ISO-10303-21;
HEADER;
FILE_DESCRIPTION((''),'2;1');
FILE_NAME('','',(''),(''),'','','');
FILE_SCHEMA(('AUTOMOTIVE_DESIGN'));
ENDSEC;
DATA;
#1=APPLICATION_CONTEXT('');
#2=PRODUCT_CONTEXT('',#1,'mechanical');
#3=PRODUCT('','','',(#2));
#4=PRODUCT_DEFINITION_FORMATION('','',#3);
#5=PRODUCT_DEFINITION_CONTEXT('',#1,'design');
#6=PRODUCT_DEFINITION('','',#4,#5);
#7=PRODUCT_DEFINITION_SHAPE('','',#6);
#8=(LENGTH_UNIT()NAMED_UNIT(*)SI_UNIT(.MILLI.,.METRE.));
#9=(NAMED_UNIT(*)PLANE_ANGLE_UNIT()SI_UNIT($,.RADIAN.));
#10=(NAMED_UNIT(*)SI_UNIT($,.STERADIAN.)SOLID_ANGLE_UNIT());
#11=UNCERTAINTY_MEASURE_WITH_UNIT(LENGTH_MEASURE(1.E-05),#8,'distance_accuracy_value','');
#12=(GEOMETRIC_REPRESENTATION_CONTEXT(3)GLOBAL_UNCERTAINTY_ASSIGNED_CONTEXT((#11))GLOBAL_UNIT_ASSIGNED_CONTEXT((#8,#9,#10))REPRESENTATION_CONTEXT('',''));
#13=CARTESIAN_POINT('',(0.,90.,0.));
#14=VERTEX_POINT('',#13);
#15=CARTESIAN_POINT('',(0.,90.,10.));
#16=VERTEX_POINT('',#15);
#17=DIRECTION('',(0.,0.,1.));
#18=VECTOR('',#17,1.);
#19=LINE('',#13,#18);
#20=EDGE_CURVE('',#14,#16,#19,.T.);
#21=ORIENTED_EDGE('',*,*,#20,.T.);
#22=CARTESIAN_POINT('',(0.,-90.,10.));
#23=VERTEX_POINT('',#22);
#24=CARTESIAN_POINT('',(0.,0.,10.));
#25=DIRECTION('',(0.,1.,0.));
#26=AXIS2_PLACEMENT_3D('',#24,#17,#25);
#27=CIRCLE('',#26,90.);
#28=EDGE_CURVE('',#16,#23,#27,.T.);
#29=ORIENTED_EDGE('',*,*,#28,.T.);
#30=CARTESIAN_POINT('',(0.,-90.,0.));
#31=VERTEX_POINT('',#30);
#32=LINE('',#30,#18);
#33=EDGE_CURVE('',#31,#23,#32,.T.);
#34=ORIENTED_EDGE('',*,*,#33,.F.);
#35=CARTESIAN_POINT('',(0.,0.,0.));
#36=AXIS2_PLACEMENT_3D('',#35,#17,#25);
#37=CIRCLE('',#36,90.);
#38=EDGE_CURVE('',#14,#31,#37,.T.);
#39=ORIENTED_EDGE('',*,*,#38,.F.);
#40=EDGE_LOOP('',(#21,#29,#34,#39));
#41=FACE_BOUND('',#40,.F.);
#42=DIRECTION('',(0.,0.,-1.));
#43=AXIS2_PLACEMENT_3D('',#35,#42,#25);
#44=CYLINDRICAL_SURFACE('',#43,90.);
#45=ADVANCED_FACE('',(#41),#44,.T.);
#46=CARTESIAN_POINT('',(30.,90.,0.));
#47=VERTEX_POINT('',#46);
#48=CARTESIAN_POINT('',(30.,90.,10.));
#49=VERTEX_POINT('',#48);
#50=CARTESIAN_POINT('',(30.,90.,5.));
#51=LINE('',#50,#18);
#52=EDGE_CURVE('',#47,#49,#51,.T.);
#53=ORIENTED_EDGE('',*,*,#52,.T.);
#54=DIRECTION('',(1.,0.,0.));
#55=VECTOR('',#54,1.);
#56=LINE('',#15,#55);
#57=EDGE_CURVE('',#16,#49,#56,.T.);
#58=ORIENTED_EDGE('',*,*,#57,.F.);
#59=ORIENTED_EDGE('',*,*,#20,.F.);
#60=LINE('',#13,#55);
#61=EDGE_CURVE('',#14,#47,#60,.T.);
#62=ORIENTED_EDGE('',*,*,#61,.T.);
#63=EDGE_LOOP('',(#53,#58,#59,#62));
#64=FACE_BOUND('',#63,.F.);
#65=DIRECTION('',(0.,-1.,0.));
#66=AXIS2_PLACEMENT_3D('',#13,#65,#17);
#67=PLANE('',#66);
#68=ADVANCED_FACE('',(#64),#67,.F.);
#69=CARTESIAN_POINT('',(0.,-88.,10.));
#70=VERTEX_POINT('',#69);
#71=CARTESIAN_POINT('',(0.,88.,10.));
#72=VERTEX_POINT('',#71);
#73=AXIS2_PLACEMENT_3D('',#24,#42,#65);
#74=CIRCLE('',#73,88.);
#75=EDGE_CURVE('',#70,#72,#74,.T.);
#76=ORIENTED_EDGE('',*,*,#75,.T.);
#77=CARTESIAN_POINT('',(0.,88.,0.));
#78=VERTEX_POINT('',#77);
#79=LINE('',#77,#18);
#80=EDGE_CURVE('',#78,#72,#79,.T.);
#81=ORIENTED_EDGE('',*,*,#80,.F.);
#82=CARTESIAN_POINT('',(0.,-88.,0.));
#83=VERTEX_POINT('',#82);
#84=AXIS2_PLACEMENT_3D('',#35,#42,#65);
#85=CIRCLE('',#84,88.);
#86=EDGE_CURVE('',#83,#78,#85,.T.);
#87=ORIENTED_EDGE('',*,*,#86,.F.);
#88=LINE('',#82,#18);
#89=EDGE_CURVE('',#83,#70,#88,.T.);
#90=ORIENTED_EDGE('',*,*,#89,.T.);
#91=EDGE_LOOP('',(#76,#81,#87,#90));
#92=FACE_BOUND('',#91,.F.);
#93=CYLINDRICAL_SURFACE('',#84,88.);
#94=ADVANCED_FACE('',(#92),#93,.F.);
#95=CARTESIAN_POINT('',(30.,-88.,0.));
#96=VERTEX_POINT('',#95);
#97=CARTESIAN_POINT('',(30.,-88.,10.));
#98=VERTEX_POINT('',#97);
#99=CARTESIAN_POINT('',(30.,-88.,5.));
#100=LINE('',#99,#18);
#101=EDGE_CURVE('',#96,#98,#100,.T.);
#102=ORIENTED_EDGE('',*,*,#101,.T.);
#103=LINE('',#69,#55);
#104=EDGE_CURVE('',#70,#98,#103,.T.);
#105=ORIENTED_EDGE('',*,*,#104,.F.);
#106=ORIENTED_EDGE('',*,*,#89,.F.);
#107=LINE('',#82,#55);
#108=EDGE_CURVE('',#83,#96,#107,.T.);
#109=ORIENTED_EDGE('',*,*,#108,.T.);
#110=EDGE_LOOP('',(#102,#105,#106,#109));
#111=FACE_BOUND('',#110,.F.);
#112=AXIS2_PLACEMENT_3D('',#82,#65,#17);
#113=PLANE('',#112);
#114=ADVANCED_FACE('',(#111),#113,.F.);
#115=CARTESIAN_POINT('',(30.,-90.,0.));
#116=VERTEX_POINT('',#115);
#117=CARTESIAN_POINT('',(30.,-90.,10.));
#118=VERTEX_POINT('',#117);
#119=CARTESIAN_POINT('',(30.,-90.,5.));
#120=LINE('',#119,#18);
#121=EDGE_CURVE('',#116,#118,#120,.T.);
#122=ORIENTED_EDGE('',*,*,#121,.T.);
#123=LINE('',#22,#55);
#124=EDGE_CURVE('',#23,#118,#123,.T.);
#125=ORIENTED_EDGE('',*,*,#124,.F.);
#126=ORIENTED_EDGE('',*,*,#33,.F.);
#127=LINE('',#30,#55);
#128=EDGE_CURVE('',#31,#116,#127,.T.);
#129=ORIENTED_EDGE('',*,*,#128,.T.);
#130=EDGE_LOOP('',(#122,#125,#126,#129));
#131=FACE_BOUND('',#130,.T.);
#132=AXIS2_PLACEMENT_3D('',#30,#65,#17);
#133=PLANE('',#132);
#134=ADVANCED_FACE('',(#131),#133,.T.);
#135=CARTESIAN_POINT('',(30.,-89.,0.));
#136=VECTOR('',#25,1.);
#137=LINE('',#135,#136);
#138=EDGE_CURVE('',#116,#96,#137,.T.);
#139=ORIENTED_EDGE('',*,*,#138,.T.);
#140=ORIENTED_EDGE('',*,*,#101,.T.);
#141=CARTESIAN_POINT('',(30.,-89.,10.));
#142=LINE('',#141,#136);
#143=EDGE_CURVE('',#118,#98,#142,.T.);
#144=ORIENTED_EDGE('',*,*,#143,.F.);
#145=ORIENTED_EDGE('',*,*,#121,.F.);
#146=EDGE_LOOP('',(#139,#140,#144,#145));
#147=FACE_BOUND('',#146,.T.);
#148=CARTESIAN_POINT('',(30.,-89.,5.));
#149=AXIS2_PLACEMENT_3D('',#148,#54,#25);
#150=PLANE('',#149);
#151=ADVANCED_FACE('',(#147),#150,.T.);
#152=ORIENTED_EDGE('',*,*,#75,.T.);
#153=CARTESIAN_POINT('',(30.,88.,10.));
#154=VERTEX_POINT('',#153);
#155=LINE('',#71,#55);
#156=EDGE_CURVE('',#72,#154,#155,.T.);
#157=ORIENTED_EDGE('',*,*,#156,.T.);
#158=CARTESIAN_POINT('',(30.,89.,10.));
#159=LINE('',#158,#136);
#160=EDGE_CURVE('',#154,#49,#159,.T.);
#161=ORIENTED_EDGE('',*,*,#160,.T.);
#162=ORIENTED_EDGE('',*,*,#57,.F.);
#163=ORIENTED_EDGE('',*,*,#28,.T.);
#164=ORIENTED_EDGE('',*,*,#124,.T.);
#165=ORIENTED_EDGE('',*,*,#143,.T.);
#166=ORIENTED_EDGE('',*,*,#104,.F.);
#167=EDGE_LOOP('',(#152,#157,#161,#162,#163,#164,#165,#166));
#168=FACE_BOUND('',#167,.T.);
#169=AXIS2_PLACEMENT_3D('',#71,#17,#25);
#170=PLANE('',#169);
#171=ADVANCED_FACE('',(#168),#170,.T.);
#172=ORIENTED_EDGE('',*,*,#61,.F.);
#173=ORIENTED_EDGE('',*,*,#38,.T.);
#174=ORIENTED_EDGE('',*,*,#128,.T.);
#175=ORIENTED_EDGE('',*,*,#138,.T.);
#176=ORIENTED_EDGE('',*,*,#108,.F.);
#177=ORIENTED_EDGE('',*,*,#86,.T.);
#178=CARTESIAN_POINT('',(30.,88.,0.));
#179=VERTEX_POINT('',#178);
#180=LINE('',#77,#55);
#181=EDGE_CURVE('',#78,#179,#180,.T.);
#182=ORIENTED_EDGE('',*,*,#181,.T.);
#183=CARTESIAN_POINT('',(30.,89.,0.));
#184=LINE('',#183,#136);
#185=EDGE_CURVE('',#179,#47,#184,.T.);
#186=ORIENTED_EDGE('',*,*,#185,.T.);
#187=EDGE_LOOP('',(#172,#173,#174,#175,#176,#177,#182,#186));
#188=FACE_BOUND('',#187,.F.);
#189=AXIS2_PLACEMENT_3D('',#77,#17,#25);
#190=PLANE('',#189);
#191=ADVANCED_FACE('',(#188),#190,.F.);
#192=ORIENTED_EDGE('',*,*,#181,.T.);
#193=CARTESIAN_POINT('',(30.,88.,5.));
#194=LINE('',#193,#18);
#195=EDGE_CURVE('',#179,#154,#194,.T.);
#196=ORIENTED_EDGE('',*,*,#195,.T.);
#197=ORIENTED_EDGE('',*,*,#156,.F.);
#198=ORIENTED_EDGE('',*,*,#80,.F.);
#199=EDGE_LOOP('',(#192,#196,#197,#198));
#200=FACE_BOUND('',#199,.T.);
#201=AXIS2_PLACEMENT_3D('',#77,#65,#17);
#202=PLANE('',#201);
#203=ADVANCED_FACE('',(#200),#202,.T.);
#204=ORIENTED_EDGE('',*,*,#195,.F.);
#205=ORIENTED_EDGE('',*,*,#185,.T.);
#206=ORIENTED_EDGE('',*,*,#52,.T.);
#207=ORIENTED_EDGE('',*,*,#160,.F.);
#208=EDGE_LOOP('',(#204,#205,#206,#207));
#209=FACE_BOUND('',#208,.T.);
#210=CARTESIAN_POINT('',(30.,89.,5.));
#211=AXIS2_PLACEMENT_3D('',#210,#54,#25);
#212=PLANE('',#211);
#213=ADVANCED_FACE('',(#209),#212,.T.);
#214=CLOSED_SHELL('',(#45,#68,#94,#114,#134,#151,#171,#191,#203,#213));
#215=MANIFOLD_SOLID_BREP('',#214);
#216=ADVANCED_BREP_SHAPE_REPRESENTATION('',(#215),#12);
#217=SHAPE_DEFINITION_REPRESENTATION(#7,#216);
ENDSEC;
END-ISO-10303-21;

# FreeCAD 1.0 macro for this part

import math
import FreeCAD as App
import Part
import Sketcher
Q = App.Units.Quantity

doc = App.newDocument("Part")
body = doc.addObject("PartDesign::Body", "Body")

# Sketch on XY plane
sketch1 = body.newObject("Sketcher::SketchObject", "Sketch")
sketch1.AttachmentSupport = (doc.getObject("XY_Plane"), [""])
sketch1.MapMode = "FlatFace"
sketch1.addGeometry([
    Part.LineSegment(App.Vector(0, 88, 0), App.Vector(0, 90, 0)),
    Part.ArcOfCircle(Part.Circle(App.Vector(0, 0, 0), App.Vector(0, 0, 1), 90), math.radians(90), math.radians(270)),
    Part.LineSegment(App.Vector(0, -90, 0), App.Vector(0, -88, 0)),
    Part.ArcOfCircle(Part.Circle(App.Vector(0, 0, 0), App.Vector(0, 0, 1), 88), math.radians(90), math.radians(270)),
], False)
sketch1.addConstraint([
    Sketcher.Constraint("Coincident", 0, 2, 1, 1),
    Sketcher.Constraint("Coincident", 1, 2, 2, 1),
    Sketcher.Constraint("Coincident", 2, 2, 3, 2),
    Sketcher.Constraint("Coincident", 3, 1, 0, 1),
    Sketcher.Constraint("Vertical", 0),
    Sketcher.Constraint("Vertical", 2),
    Sketcher.Constraint("Coincident", 1, 3, -1, 1),
    Sketcher.Constraint("Coincident", 3, 3, -1, 1),
    Sketcher.Constraint("PointOnObject", 0, 2, -2),
    Sketcher.Constraint("PointOnObject", 1, 2, -2),
    Sketcher.Constraint("Radius", 1, Q("90 mm")),
    Sketcher.Constraint("Radius", 3, Q("88 mm")),
])
pad1 = body.newObject("PartDesign::Pad", "Pad")
pad1.Profile = sketch1
pad1.Length = 10

# Sketch on YZ plane
sketch2 = body.newObject("Sketcher::SketchObject", "Sketch001")
sketch2.AttachmentSupport = (doc.getObject("YZ_Plane"), [""])
sketch2.MapMode = "FlatFace"
sketch2.addGeometry([
    Part.LineSegment(App.Vector(-90, 10, 0), App.Vector(-90, 0, 0)),
    Part.LineSegment(App.Vector(-90, 0, 0), App.Vector(-88, 0, 0)),
    Part.LineSegment(App.Vector(-88, 0, 0), App.Vector(-88, 10, 0)),
    Part.LineSegment(App.Vector(-88, 10, 0), App.Vector(-90, 10, 0)),
], False)
sketch2.addConstraint([
    Sketcher.Constraint("Coincident", 0, 2, 1, 1),
    Sketcher.Constraint("Coincident", 1, 2, 2, 1),
    Sketcher.Constraint("Coincident", 2, 2, 3, 1),
    Sketcher.Constraint("Coincident", 3, 2, 0, 1),
    Sketcher.Constraint("Vertical", 0),
    Sketcher.Constraint("Horizontal", 1),
    Sketcher.Constraint("Vertical", 2),
    Sketcher.Constraint("Horizontal", 3),
    Sketcher.Constraint("PointOnObject", 0, 2, -1),
    Sketcher.Constraint("DistanceX", 1, 1, 1, 2, Q("2 mm")),
    Sketcher.Constraint("DistanceY", 0, 2, 0, 1, Q("10 mm")),
    Sketcher.Constraint("DistanceX", 0, 2, -1, 1, Q("90 mm")),
])
pad2 = body.newObject("PartDesign::Pad", "Pad001")
pad2.Profile = sketch2
pad2.Length = 30

# Sketch on YZ plane
sketch3 = body.newObject("Sketcher::SketchObject", "Sketch002")
sketch3.AttachmentSupport = (doc.getObject("YZ_Plane"), [""])
sketch3.MapMode = "FlatFace"
sketch3.addGeometry([
    Part.LineSegment(App.Vector(88, 10, 0), App.Vector(88, 0, 0)),
    Part.LineSegment(App.Vector(88, 0, 0), App.Vector(90, 0, 0)),
    Part.LineSegment(App.Vector(90, 0, 0), App.Vector(90, 10, 0)),
    Part.LineSegment(App.Vector(90, 10, 0), App.Vector(88, 10, 0)),
], False)
sketch3.addConstraint([
    Sketcher.Constraint("Coincident", 0, 2, 1, 1),
    Sketcher.Constraint("Coincident", 1, 2, 2, 1),
    Sketcher.Constraint("Coincident", 2, 2, 3, 1),
    Sketcher.Constraint("Coincident", 3, 2, 0, 1),
    Sketcher.Constraint("Vertical", 0),
    Sketcher.Constraint("Horizontal", 1),
    Sketcher.Constraint("Vertical", 2),
    Sketcher.Constraint("Horizontal", 3),
    Sketcher.Constraint("PointOnObject", 0, 2, -1),
    Sketcher.Constraint("DistanceX", 1, 1, 1, 2, Q("2 mm")),
    Sketcher.Constraint("DistanceY", 0, 2, 0, 1, Q("10 mm")),
    Sketcher.Constraint("DistanceX", -1, 1, 0, 2, Q("88 mm")),
])
pad3 = body.newObject("PartDesign::Pad", "Pad002")
pad3.Profile = sketch3
pad3.Length = 30

doc.recompute()
